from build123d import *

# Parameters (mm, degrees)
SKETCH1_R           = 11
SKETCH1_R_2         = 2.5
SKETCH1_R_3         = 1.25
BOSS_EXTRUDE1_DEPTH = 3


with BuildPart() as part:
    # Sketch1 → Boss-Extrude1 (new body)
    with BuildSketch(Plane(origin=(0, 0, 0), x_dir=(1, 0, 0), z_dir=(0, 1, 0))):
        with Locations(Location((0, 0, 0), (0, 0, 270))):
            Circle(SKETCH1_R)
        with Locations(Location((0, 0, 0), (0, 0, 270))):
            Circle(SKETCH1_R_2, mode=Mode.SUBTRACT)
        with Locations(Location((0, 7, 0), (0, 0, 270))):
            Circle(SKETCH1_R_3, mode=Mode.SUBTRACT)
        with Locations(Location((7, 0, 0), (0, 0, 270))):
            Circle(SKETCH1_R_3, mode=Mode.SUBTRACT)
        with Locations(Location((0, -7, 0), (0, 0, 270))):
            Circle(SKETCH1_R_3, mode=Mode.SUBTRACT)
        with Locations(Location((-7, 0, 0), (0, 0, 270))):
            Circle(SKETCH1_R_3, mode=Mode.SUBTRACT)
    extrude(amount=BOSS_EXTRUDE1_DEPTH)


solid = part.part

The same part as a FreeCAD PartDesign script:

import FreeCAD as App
import Part
import Sketcher
Q = App.Units.Quantity

doc = App.newDocument("Part")
body = doc.addObject("PartDesign::Body", "Body")

# Sketch on XZ plane
sketch1 = body.newObject("Sketcher::SketchObject", "Sketch")
sketch1.AttachmentSupport = (doc.getObject("XZ_Plane"), [""])
sketch1.MapMode = "FlatFace"
sketch1.addGeometry(Part.Circle(App.Vector(0, 0, 0), App.Vector(0, 0, 1), 11), False)
sketch1.addGeometry(Part.Circle(App.Vector(0, -7, 0), App.Vector(0, 0, 1), 1.2), False)
sketch1.addGeometry(Part.Circle(App.Vector(-7, 0, 0), App.Vector(0, 0, 1), 1.2), False)
sketch1.addGeometry(Part.Circle(App.Vector(0, 0, 0), App.Vector(0, 0, 1), 2.5), False)
sketch1.addGeometry(Part.Circle(App.Vector(0, 7, 0), App.Vector(0, 0, 1), 1.2), False)
sketch1.addGeometry(Part.Circle(App.Vector(7, 0, 0), App.Vector(0, 0, 1), 1.2), False)
sketch1.addConstraint(Sketcher.Constraint("Coincident", 0, 3, -1, 1))
sketch1.addConstraint(Sketcher.Constraint("Coincident", 3, 3, -1, 1))
sketch1.addConstraint(Sketcher.Constraint("Equal", 1, 2))
sketch1.addConstraint(Sketcher.Constraint("Equal", 2, 4))
sketch1.addConstraint(Sketcher.Constraint("Equal", 4, 5))
sketch1.addConstraint(Sketcher.Constraint("Symmetric", 1, 3, 4, 3, -1, 1))
sketch1.addConstraint(Sketcher.Constraint("Symmetric", 2, 3, 5, 3, -1, 1))
sketch1.addConstraint(Sketcher.Constraint("PointOnObject", 1, 3, -2))
sketch1.addConstraint(Sketcher.Constraint("PointOnObject", 2, 3, -1))
sketch1.addConstraint(Sketcher.Constraint("Diameter", 0, Q("22 mm")))
sketch1.addConstraint(Sketcher.Constraint("Diameter", 3, Q("5 mm")))
sketch1.addConstraint(Sketcher.Constraint("Diameter", 1, Q("2.5 mm")))
sketch1.addConstraint(Sketcher.Constraint("DistanceY", 1, 3, -1, 1, Q("7 mm")))
sketch1.addConstraint(Sketcher.Constraint("DistanceX", 2, 3, -1, 1, Q("7 mm")))
pad1 = body.newObject("PartDesign::Pad", "Pad")
pad1.Profile = sketch1
pad1.Length = 3
pad1.Reversed = True

doc.recompute()
